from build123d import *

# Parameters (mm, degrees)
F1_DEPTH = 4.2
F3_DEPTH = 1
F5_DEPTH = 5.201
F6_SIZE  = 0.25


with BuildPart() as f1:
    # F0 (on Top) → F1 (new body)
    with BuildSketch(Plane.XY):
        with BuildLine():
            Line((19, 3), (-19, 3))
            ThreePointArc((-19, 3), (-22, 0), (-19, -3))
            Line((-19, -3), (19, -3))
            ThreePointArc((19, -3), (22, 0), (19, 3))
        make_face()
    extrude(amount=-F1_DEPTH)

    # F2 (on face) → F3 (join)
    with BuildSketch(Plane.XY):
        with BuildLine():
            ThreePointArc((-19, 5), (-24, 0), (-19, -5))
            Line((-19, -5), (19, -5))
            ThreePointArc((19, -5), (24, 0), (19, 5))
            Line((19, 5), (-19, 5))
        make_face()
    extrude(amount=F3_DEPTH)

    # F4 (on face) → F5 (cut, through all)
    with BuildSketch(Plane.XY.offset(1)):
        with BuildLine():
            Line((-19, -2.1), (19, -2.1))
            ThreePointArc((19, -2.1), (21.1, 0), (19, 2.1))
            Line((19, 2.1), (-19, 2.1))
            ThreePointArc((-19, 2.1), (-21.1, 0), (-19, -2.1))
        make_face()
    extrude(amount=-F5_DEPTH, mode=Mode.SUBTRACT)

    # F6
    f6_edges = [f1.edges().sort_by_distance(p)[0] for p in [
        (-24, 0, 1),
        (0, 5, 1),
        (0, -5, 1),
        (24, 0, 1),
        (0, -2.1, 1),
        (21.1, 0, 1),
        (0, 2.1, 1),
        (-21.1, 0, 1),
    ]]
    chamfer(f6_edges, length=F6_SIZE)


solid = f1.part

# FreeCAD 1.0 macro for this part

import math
import FreeCAD as App
import Part
import Sketcher
from FreeCAD import Vector


def edges_at(feature, points):
    """Names of the edges that pass closest to the given points."""
    edges = feature.Shape.Edges
    near = lambda p: min(range(len(edges)), key=lambda i: edges[i].distToShape(Part.Vertex(*p))[0])
    return sorted({f"Edge{near(p) + 1}" for p in points})

doc = App.newDocument("Part")
body = doc.addObject("PartDesign::Body", "Body")

# Sketch on XY plane
sketch1 = doc.addObject("Sketcher::SketchObject", "Sketch")
body.addObject(sketch1)
sketch1.AttachmentSupport = (doc.XY_Plane, [""])
sketch1.MapMode = "FlatFace"
sketch1.addGeometry([
    Part.LineSegment(Vector(19, 3, 0), Vector(-19, 3, 0)),
    Part.ArcOfCircle(Part.Circle(Vector(-19, 0, 0), Vector(0, 0, 1), 3), math.radians(90), math.radians(270)),
    Part.LineSegment(Vector(-19, -3, 0), Vector(19, -3, 0)),
    Part.ArcOfCircle(Part.Circle(Vector(19, 0, 0), Vector(0, 0, 1), 3), math.radians(-90), math.radians(90)),
], False)
sketch1.addConstraint([
    Sketcher.Constraint("Tangent", 0, 2, 1, 1),
    Sketcher.Constraint("Tangent", 1, 2, 2, 1),
    Sketcher.Constraint("Tangent", 2, 2, 3, 1),
    Sketcher.Constraint("Tangent", 3, 2, 0, 1),
    Sketcher.Constraint("Horizontal", 0),
    Sketcher.Constraint("Horizontal", 2),
    Sketcher.Constraint("Symmetric", 1, 3, 3, 3, -1, 1),
    Sketcher.Constraint("Radius", 1, 3.0),
    Sketcher.Constraint("DistanceX", 0, 2, 0, 1, 38.0),
])
pad1 = doc.addObject("PartDesign::Pad", "Pad")
body.addObject(pad1)
pad1.Profile = sketch1
pad1.Length = 4.2
pad1.Reversed = True

# Sketch on XY plane
sketch2 = doc.addObject("Sketcher::SketchObject", "Sketch001")
body.addObject(sketch2)
sketch2.AttachmentSupport = (doc.XY_Plane, [""])
sketch2.MapMode = "FlatFace"
sketch2.addGeometry([
    Part.ArcOfCircle(Part.Circle(Vector(-19, 0, 0), Vector(0, 0, 1), 5), math.radians(90), math.radians(270)),
    Part.LineSegment(Vector(-19, -5, 0), Vector(19, -5, 0)),
    Part.ArcOfCircle(Part.Circle(Vector(19, 0, 0), Vector(0, 0, 1), 5), math.radians(-90), math.radians(90)),
    Part.LineSegment(Vector(19, 5, 0), Vector(-19, 5, 0)),
], False)
sketch2.addConstraint([
    Sketcher.Constraint("Tangent", 0, 2, 1, 1),
    Sketcher.Constraint("Tangent", 1, 2, 2, 1),
    Sketcher.Constraint("Tangent", 2, 2, 3, 1),
    Sketcher.Constraint("Tangent", 3, 2, 0, 1),
    Sketcher.Constraint("Horizontal", 1),
    Sketcher.Constraint("Horizontal", 3),
    Sketcher.Constraint("Symmetric", 0, 3, 2, 3, -1, 1),
    Sketcher.Constraint("Radius", 0, 5.0),
    Sketcher.Constraint("DistanceX", 1, 1, 1, 2, 38.0),
])
pad2 = doc.addObject("PartDesign::Pad", "Pad001")
body.addObject(pad2)
pad2.Profile = sketch2
pad2.Length = 1

# Sketch on XY plane
sketch3 = doc.addObject("Sketcher::SketchObject", "Sketch002")
body.addObject(sketch3)
sketch3.AttachmentSupport = (doc.XY_Plane, [""])
sketch3.MapMode = "FlatFace"
sketch3.AttachmentOffset = App.Placement(Vector(0, 0, 1), App.Rotation())
sketch3.addGeometry([
    Part.LineSegment(Vector(-19, -2.1, 0), Vector(19, -2.1, 0)),
    Part.ArcOfCircle(Part.Circle(Vector(19, 0, 0), Vector(0, 0, 1), 2.1), math.radians(-90), math.radians(90)),
    Part.LineSegment(Vector(19, 2.1, 0), Vector(-19, 2.1, 0)),
    Part.ArcOfCircle(Part.Circle(Vector(-19, 0, 0), Vector(0, 0, 1), 2.1), math.radians(90), math.radians(270)),
], False)
sketch3.addConstraint([
    Sketcher.Constraint("Tangent", 0, 2, 1, 1),
    Sketcher.Constraint("Tangent", 1, 2, 2, 1),
    Sketcher.Constraint("Tangent", 2, 2, 3, 1),
    Sketcher.Constraint("Tangent", 3, 2, 0, 1),
    Sketcher.Constraint("Horizontal", 0),
    Sketcher.Constraint("Horizontal", 2),
    Sketcher.Constraint("Symmetric", 1, 3, 3, 3, -1, 1),
    Sketcher.Constraint("Radius", 1, 2.1),
    Sketcher.Constraint("DistanceX", 0, 1, 0, 2, 38.0),
])
pocket1 = doc.addObject("PartDesign::Pocket", "Pocket")
body.addObject(pocket1)
pocket1.Profile = sketch3
pocket1.Type = "ThroughAll"
doc.recompute()

chamfer = doc.addObject("PartDesign::Chamfer", "Chamfer")
body.addObject(chamfer)
chamfer.Base = (pocket1, edges_at(pocket1, [
    (-24, 0, 1),
    (0, 5, 1),
    (0, -5, 1),
    (24, 0, 1),
    (0, -2.1, 1),
    (21.1, 0, 1),
    (0, 2.1, 1),
    (-21.1, 0, 1),
]))
chamfer.Size = 0.25

doc.recompute()
